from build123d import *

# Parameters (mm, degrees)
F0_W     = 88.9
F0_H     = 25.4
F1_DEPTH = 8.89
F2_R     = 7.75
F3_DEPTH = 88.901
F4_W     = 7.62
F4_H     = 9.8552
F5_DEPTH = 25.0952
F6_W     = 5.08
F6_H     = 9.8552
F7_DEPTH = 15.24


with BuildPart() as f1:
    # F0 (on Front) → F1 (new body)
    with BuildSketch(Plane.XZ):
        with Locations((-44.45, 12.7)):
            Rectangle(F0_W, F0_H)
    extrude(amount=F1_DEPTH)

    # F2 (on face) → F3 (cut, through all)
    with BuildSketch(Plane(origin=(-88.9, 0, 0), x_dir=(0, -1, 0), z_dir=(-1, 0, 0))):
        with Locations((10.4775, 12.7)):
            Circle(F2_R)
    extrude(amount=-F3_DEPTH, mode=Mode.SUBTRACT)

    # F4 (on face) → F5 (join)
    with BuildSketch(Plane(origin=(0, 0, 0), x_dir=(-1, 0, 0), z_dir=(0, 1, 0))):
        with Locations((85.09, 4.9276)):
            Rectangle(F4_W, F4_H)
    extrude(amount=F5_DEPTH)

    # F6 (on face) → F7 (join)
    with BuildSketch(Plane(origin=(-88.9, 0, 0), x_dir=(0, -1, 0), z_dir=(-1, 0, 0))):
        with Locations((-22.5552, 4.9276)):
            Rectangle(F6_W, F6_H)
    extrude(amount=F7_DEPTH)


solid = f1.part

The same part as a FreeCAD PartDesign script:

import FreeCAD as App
import Part
import Sketcher

V = App.Vector
Q = App.Units.Quantity

doc = App.newDocument("Part")
params = doc.addObject("Spreadsheet::Sheet", "Params")
for row, (alias, value) in enumerate([
    ("sketch1_height", "1 in"),
    ("sketch1_width", "3.5 in"),
    ("pad1_length", "0.35 in"),
    ("sketch3_width", "0.3 in"),
    ("sketch3_height", "0.388 in"),
    ("pad2_length", "0.988 in"),
    ("sketch4_width", "0.2 in"),
    ("sketch4_height", "0.388 in"),
    ("pad3_length", "0.6 in"),
], start=1):
    params.set(f"A{row}", alias)
    params.set(f"B{row}", "=" + value)
    params.setAlias(f"B{row}", alias)

body = doc.addObject("PartDesign::Body", "Body")

sketch1 = body.newObject("Sketcher::SketchObject", "Sketch")
sketch1.AttachmentSupport = (doc.getObject("XZ_Plane"), [""])
sketch1.MapMode = "FlatFace"
sketch1.addGeometry([
    Part.LineSegment(V(-88.9, 25.4, 0), V(-88.9, 0, 0)),
    Part.LineSegment(V(-88.9, 0, 0), V(0, 0, 0)),
    Part.LineSegment(V(0, 0, 0), V(0, 25.4, 0)),
    Part.LineSegment(V(0, 25.4, 0), V(-88.9, 25.4, 0)),
], False)
sketch1.addConstraint([
    Sketcher.Constraint("Coincident", 0, 2, 1, 1),
    Sketcher.Constraint("Coincident", 1, 2, 2, 1),
    Sketcher.Constraint("Coincident", 2, 2, 3, 1),
    Sketcher.Constraint("Coincident", 3, 2, 0, 1),
    Sketcher.Constraint("Vertical", 0),
    Sketcher.Constraint("Horizontal", 1),
    Sketcher.Constraint("Vertical", 2),
    Sketcher.Constraint("Horizontal", 3),
    Sketcher.Constraint("Coincident", 1, 2, -1, 1),
    Sketcher.Constraint("DistanceY", 0, 2, 0, 1, Q("1 in")),
    Sketcher.Constraint("DistanceX", 1, 1, 1, 2, Q("3.5 in")),
])
sketch1.setExpression("Constraints[9]", "Params.sketch1_height")
sketch1.setExpression("Constraints[10]", "Params.sketch1_width")
pad1 = body.newObject("PartDesign::Pad", "Pad")
pad1.Profile = sketch1
pad1.setExpression("Length", "Params.pad1_length")

sketch2 = body.newObject("Sketcher::SketchObject", "Sketch001")
sketch2.AttachmentSupport = (doc.getObject("YZ_Plane"), [""])
sketch2.MapMode = "FlatFace"
sketch2.AttachmentOffset = App.Placement(V(0, 0, -3.5 * 25.4), App.Rotation())
sketch2.addGeometry(Part.Circle(V(-10.4775, 12.7, 0), V(0, 0, 1), 7.75), False)
sketch2.addConstraint([
    Sketcher.Constraint("DistanceY", -1, 1, 0, 3, Q("0.5 in")),
    Sketcher.Constraint("Diameter", 0, 15.5),
    Sketcher.Constraint("DistanceX", 0, 3, -1, 1, Q("0.4125 in")),
])
pocket1 = body.newObject("PartDesign::Pocket", "Pocket")
pocket1.Profile = sketch2
pocket1.Type = "ThroughAll"
pocket1.Reversed = True

sketch3 = body.newObject("Sketcher::SketchObject", "Sketch002")
sketch3.AttachmentSupport = (doc.getObject("XZ_Plane"), [""])
sketch3.MapMode = "FlatFace"
sketch3.addGeometry([
    Part.LineSegment(V(-81.28, 9.8552, 0), V(-81.28, 0, 0)),
    Part.LineSegment(V(-81.28, 0, 0), V(-88.9, 0, 0)),
    Part.LineSegment(V(-88.9, 0, 0), V(-88.9, 9.8552, 0)),
    Part.LineSegment(V(-88.9, 9.8552, 0), V(-81.28, 9.8552, 0)),
], False)
sketch3.addConstraint([
    Sketcher.Constraint("Coincident", 0, 2, 1, 1),
    Sketcher.Constraint("Coincident", 1, 2, 2, 1),
    Sketcher.Constraint("Coincident", 2, 2, 3, 1),
    Sketcher.Constraint("Coincident", 3, 2, 0, 1),
    Sketcher.Constraint("Vertical", 0),
    Sketcher.Constraint("Horizontal", 1),
    Sketcher.Constraint("Vertical", 2),
    Sketcher.Constraint("Horizontal", 3),
    Sketcher.Constraint("PointOnObject", 0, 2, -1),
    Sketcher.Constraint("DistanceX", 1, 2, 1, 1, Q("0.3 in")),
    Sketcher.Constraint("DistanceX", 0, 2, -1, 1, Q("3.2 in")),
    Sketcher.Constraint("DistanceY", 0, 2, 0, 1, Q("0.388 in")),
])
sketch3.setExpression("Constraints[9]", "Params.sketch3_width")
sketch3.setExpression("Constraints[11]", "Params.sketch3_height")
pad2 = body.newObject("PartDesign::Pad", "Pad001")
pad2.Profile = sketch3
pad2.setExpression("Length", "Params.pad2_length")
pad2.Reversed = True

sketch4 = body.newObject("Sketcher::SketchObject", "Sketch003")
sketch4.AttachmentSupport = (doc.getObject("YZ_Plane"), [""])
sketch4.MapMode = "FlatFace"
sketch4.AttachmentOffset = App.Placement(V(0, 0, -3.5 * 25.4), App.Rotation())
sketch4.addGeometry([
    Part.LineSegment(V(25.0952, 9.8552, 0), V(25.0952, 0, 0)),
    Part.LineSegment(V(25.0952, 0, 0), V(20.0152, 0, 0)),
    Part.LineSegment(V(20.0152, 0, 0), V(20.0152, 9.8552, 0)),
    Part.LineSegment(V(20.0152, 9.8552, 0), V(25.0952, 9.8552, 0)),
], False)
sketch4.addConstraint([
    Sketcher.Constraint("Coincident", 0, 2, 1, 1),
    Sketcher.Constraint("Coincident", 1, 2, 2, 1),
    Sketcher.Constraint("Coincident", 2, 2, 3, 1),
    Sketcher.Constraint("Coincident", 3, 2, 0, 1),
    Sketcher.Constraint("Vertical", 0),
    Sketcher.Constraint("Horizontal", 1),
    Sketcher.Constraint("Vertical", 2),
    Sketcher.Constraint("Horizontal", 3),
    Sketcher.Constraint("PointOnObject", 0, 2, -1),
    Sketcher.Constraint("DistanceX", 1, 2, 1, 1, Q("0.2 in")),
    Sketcher.Constraint("DistanceY", 0, 2, 0, 1, Q("0.388 in")),
    Sketcher.Constraint("DistanceX", -1, 1, 0, 2, Q("0.988 in")),
])
sketch4.setExpression("Constraints[9]", "Params.sketch4_width")
sketch4.setExpression("Constraints[10]", "Params.sketch4_height")
pad3 = body.newObject("PartDesign::Pad", "Pad002")
pad3.Profile = sketch4
pad3.setExpression("Length", "Params.pad3_length")
pad3.Reversed = True

doc.recompute()
